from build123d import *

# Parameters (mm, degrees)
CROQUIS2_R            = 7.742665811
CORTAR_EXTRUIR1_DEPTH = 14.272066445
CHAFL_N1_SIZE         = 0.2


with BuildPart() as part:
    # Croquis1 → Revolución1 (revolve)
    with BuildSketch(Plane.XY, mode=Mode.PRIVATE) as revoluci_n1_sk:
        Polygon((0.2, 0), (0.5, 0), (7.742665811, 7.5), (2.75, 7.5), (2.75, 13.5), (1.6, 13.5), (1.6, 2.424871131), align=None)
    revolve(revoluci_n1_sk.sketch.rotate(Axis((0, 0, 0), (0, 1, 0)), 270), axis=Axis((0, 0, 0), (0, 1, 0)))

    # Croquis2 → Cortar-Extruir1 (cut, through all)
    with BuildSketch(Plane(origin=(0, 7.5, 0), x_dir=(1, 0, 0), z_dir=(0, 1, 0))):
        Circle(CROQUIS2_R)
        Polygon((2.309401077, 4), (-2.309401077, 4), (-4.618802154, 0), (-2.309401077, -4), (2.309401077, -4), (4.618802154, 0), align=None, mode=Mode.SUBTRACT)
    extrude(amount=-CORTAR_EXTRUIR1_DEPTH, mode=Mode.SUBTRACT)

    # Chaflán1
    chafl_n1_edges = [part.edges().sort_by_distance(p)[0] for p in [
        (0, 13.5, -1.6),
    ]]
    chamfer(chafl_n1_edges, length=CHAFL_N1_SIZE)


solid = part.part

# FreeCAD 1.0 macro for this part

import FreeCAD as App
import Part
import Sketcher

V = App.Vector
Q = App.Units.Quantity


def edges_at(feature, points):
    """Names of the edges that pass closest to the given points."""
    edges = feature.Shape.Edges
    near = lambda p: min(range(len(edges)), key=lambda i: edges[i].distToShape(Part.Vertex(*p))[0])
    return sorted({f"Edge{near(p) + 1}" for p in points})

doc = App.newDocument("Part")
body = doc.addObject("PartDesign::Body", "Body")

sketch1 = body.newObject("Sketcher::SketchObject", "Sketch")
sketch1.AttachmentSupport = (doc.getObject("XY_Plane"), [""])
sketch1.MapMode = "FlatFace"
sketch1.addGeometry([
    Part.LineSegment(V(0.2, 0, 0), V(0.5, 0, 0)),
    Part.LineSegment(V(0.5, 0, 0), V(7.74, 7.5, 0)),
    Part.LineSegment(V(7.74, 7.5, 0), V(2.75, 7.5, 0)),
    Part.LineSegment(V(2.75, 7.5, 0), V(2.75, 13.5, 0)),
    Part.LineSegment(V(2.75, 13.5, 0), V(1.6, 13.5, 0)),
    Part.LineSegment(V(1.6, 13.5, 0), V(1.6, 2.42, 0)),
    Part.LineSegment(V(1.6, 2.42, 0), V(0.2, 0, 0)),
], False)
sketch1.addConstraint([
    Sketcher.Constraint("Coincident", 0, 2, 1, 1),
    Sketcher.Constraint("Coincident", 1, 2, 2, 1),
    Sketcher.Constraint("Coincident", 2, 2, 3, 1),
    Sketcher.Constraint("Coincident", 3, 2, 4, 1),
    Sketcher.Constraint("Coincident", 4, 2, 5, 1),
    Sketcher.Constraint("Coincident", 5, 2, 6, 1),
    Sketcher.Constraint("Coincident", 6, 2, 0, 1),
    Sketcher.Constraint("Horizontal", 0),
    Sketcher.Constraint("Horizontal", 2),
    Sketcher.Constraint("Vertical", 3),
    Sketcher.Constraint("Horizontal", 4),
    Sketcher.Constraint("Vertical", 5),
    Sketcher.Constraint("PointOnObject", 0, 2, -1),
    Sketcher.Constraint("DistanceY", 3, 1, 3, 2, Q("6 mm")),
    Sketcher.Constraint("Angle", 1, Q("46 deg")),
    Sketcher.Constraint("Angle", 6, Q("-120 deg")),
    Sketcher.Constraint("DistanceX", 0, 1, 0, 2, Q("0.3 mm")),
    Sketcher.Constraint("Distance", 6, Q("2.8 mm")),
    Sketcher.Constraint("DistanceX", 4, 2, 4, 1, Q("1.15 mm")),
    Sketcher.Constraint("DistanceX", -1, 1, 0, 2, Q("0.5 mm")),
    Sketcher.Constraint("DistanceY", -1, 1, 1, 2, Q("7.5 mm")),
])
revolution = body.newObject("PartDesign::Revolution", "Revolution")
revolution.Profile = sketch1
revolution.ReferenceAxis = (sketch1, ["V_Axis"])
revolution.Angle = 360

sketch2 = body.newObject("Sketcher::SketchObject", "Sketch001")
sketch2.AttachmentSupport = (doc.getObject("XZ_Plane"), [""])
sketch2.MapMode = "FlatFace"
sketch2.AttachmentOffset = App.Placement(V(0, 0, -7.5), App.Rotation())
sketch2.addGeometry([
    Part.Circle(V(0, 0, 0), V(0, 0, 1), 7.7),
    Part.LineSegment(V(-2.3, -4, 0), V(2.3, -4, 0)),
    Part.LineSegment(V(2.3, -4, 0), V(4.6, 0, 0)),
    Part.LineSegment(V(4.6, 0, 0), V(2.3, 4, 0)),
    Part.LineSegment(V(2.3, 4, 0), V(-2.3, 4, 0)),
    Part.LineSegment(V(-2.3, 4, 0), V(-4.6, 0, 0)),
    Part.LineSegment(V(-4.6, 0, 0), V(-2.3, -4, 0)),
], False)
sketch2.addConstraint([
    Sketcher.Constraint("Coincident", 1, 2, 2, 1),
    Sketcher.Constraint("Coincident", 2, 2, 3, 1),
    Sketcher.Constraint("Coincident", 3, 2, 4, 1),
    Sketcher.Constraint("Coincident", 4, 2, 5, 1),
    Sketcher.Constraint("Coincident", 5, 2, 6, 1),
    Sketcher.Constraint("Coincident", 6, 2, 1, 1),
    Sketcher.Constraint("Horizontal", 1),
    Sketcher.Constraint("Horizontal", 4),
    Sketcher.Constraint("Coincident", 0, 3, -1, 1),
    Sketcher.Constraint("Symmetric", 1, 2, 4, 2, -1, 1),
    Sketcher.Constraint("Symmetric", 2, 2, 5, 2, -1, 1),
    Sketcher.Constraint("PointOnObject", 2, 2, -1),
    Sketcher.Constraint("Parallel", 3, 6),
    Sketcher.Constraint("Vertical", 1, 2, 3, 2),
    Sketcher.Constraint("Angle", 2, Q("60 deg")),
    Sketcher.Constraint("DistanceY", 1, 2, -1, 1, Q("4 mm")),
    Sketcher.Constraint("Diameter", 0, Q("15.485332 mm")),
    Sketcher.Constraint("DistanceX", -1, 1, 1, 2, Q("2.309401 mm")),
])
pocket1 = body.newObject("PartDesign::Pocket", "Pocket")
pocket1.Profile = sketch2
pocket1.Type = "ThroughAll"
pocket1.Reversed = True
doc.recompute()

chamfer = body.newObject("PartDesign::Chamfer", "Chamfer")
chamfer.Base = (pocket1, edges_at(pocket1, [(0, 13.5, -1.6)]))
chamfer.Size = 0.2

doc.recompute()
